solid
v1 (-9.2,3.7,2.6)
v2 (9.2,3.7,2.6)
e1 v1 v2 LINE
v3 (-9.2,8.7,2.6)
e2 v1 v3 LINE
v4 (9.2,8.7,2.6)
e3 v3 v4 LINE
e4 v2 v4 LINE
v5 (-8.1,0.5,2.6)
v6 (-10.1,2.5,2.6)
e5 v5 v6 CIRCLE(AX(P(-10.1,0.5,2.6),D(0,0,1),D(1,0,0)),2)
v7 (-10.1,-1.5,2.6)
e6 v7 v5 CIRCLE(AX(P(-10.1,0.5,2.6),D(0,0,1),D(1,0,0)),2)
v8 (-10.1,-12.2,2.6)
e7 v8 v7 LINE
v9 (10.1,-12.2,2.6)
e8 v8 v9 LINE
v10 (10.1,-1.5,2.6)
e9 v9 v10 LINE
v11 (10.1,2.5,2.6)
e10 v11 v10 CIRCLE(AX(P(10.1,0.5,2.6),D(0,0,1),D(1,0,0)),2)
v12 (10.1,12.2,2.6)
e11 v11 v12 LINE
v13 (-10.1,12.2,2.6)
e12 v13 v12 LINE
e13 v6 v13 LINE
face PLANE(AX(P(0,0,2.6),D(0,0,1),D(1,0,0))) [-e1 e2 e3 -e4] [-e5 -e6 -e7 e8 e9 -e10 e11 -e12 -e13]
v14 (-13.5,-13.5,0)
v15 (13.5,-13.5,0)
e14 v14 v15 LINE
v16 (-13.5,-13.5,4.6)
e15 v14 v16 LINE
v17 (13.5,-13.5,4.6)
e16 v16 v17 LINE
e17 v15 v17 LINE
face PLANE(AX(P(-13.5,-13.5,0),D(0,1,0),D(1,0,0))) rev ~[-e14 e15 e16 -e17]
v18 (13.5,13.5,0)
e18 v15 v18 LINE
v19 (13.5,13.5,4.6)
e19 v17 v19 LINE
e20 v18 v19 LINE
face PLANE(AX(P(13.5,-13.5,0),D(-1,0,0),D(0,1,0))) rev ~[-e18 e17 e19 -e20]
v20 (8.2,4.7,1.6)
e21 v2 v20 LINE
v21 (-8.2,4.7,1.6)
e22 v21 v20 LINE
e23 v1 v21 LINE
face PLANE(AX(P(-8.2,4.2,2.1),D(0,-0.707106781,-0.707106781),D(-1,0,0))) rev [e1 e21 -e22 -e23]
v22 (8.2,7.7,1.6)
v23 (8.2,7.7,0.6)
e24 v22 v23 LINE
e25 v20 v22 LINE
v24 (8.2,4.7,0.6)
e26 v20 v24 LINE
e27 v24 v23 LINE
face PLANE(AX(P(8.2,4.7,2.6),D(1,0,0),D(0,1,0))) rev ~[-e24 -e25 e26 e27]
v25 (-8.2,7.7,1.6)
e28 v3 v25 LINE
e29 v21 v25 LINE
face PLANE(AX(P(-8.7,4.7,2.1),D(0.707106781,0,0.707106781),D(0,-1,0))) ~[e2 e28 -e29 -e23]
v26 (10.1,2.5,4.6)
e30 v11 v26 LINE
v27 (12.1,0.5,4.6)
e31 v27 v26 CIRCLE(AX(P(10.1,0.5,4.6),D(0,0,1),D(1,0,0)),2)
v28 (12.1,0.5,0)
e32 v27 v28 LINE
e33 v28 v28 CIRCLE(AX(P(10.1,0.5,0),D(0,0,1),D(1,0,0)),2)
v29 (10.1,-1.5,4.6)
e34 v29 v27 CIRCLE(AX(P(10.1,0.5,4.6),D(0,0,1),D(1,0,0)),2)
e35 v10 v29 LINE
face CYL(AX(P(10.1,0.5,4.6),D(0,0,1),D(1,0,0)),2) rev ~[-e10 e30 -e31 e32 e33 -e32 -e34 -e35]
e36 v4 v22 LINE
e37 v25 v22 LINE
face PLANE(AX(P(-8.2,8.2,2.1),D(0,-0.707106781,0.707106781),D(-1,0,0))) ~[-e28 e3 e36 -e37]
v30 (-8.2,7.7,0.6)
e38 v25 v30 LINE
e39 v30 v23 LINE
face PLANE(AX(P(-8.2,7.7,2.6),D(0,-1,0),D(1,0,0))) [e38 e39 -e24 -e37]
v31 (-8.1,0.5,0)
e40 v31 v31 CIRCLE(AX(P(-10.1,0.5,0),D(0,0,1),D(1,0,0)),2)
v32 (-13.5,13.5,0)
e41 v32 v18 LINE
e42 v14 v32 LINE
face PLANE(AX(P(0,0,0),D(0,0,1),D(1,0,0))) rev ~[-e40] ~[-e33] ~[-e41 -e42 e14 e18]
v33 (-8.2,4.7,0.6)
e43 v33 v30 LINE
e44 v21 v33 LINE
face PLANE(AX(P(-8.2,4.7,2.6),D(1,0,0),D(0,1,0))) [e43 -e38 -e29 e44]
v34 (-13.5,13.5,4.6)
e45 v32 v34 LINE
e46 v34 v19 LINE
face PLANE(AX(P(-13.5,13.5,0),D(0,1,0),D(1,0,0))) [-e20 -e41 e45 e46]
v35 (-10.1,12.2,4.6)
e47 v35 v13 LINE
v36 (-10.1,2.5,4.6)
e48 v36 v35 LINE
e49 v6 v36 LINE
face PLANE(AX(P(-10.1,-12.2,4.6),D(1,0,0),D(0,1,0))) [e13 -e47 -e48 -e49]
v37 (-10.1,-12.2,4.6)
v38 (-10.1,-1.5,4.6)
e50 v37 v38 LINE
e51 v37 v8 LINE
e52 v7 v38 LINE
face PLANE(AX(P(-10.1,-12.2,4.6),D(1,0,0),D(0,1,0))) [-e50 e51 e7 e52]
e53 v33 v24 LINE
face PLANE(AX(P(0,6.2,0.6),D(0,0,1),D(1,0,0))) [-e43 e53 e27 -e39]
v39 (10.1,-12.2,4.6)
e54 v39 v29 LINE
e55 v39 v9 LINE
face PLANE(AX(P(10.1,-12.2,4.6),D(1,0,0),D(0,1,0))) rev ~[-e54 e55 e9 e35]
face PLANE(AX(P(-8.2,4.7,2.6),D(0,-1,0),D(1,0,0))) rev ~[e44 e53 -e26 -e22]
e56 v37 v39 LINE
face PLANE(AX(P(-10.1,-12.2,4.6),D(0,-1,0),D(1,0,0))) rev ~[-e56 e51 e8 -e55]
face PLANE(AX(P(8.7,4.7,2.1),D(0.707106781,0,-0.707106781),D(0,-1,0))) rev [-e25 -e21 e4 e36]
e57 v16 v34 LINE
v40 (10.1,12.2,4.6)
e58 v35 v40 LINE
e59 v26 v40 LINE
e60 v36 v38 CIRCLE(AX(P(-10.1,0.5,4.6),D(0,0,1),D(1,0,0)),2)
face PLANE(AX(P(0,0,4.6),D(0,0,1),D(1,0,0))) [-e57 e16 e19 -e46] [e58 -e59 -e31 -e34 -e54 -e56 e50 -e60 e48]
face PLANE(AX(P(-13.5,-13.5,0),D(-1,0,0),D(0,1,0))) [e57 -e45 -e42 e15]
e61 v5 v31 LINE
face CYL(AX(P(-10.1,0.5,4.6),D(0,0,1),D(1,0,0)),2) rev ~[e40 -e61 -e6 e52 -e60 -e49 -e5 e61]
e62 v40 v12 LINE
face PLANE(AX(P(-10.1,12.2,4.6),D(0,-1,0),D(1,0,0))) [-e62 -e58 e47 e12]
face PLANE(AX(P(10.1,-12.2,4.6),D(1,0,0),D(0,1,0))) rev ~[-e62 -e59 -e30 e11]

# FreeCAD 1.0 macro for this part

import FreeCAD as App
import Part
import Sketcher
Q = App.Units.Quantity


def edges_at(feature, points):
    """Names of the edges that pass closest to the given points."""
    edges = feature.Shape.Edges
    near = lambda p: min(range(len(edges)), key=lambda i: edges[i].distToShape(Part.Vertex(*p))[0])
    return sorted({f"Edge{near(p) + 1}" for p in points})

doc = App.newDocument("Part")
body = doc.addObject("PartDesign::Body", "Body")

sketch1 = doc.addObject("Sketcher::SketchObject", "Sketch")
body.addObject(sketch1)
sketch1.AttachmentSupport = (doc.XY_Plane, [""])
sketch1.MapMode = "FlatFace"
sketch1.addGeometry(Part.LineSegment(App.Vector(-14, 14, 0), App.Vector(-14, -14, 0)), False)
sketch1.addGeometry(Part.LineSegment(App.Vector(-14, -14, 0), App.Vector(14, -14, 0)), False)
sketch1.addGeometry(Part.LineSegment(App.Vector(14, -14, 0), App.Vector(14, 14, 0)), False)
sketch1.addGeometry(Part.LineSegment(App.Vector(14, 14, 0), App.Vector(-14, 14, 0)), False)
sketch1.addConstraint(Sketcher.Constraint("Coincident", 0, 2, 1, 1))
sketch1.addConstraint(Sketcher.Constraint("Coincident", 1, 2, 2, 1))
sketch1.addConstraint(Sketcher.Constraint("Coincident", 2, 2, 3, 1))
sketch1.addConstraint(Sketcher.Constraint("Coincident", 3, 2, 0, 1))
sketch1.addConstraint(Sketcher.Constraint("Vertical", 0))
sketch1.addConstraint(Sketcher.Constraint("Horizontal", 1))
sketch1.addConstraint(Sketcher.Constraint("Vertical", 2))
sketch1.addConstraint(Sketcher.Constraint("Horizontal", 3))
sketch1.addConstraint(Sketcher.Constraint("Symmetric", 0, 2, 2, 2, -1, 1))
sketch1.addConstraint(Sketcher.Constraint("Equal", 3, 0))
sketch1.addConstraint(Sketcher.Constraint("DistanceX", 1, 1, 1, 2, Q("27 mm")))
pad1 = doc.addObject("PartDesign::Pad", "Pad")
body.addObject(pad1)
pad1.Profile = sketch1
pad1.Length = 4.6

sketch2 = doc.addObject("Sketcher::SketchObject", "Sketch001")
body.addObject(sketch2)
sketch2.AttachmentSupport = (doc.XY_Plane, [""])
sketch2.MapMode = "FlatFace"
sketch2.AttachmentOffset = App.Placement(App.Vector(0, 0, 4.6), App.Rotation())
sketch2.addGeometry(Part.LineSegment(App.Vector(-10, 12, 0), App.Vector(-10, -12, 0)), False)
sketch2.addGeometry(Part.LineSegment(App.Vector(-10, -12, 0), App.Vector(10, -12, 0)), False)
sketch2.addGeometry(Part.LineSegment(App.Vector(10, -12, 0), App.Vector(10, 12, 0)), False)
sketch2.addGeometry(Part.LineSegment(App.Vector(10, 12, 0), App.Vector(-10, 12, 0)), False)
sketch2.addConstraint(Sketcher.Constraint("Coincident", 0, 2, 1, 1))
sketch2.addConstraint(Sketcher.Constraint("Coincident", 1, 2, 2, 1))
sketch2.addConstraint(Sketcher.Constraint("Coincident", 2, 2, 3, 1))
sketch2.addConstraint(Sketcher.Constraint("Coincident", 3, 2, 0, 1))
sketch2.addConstraint(Sketcher.Constraint("Vertical", 0))
sketch2.addConstraint(Sketcher.Constraint("Horizontal", 1))
sketch2.addConstraint(Sketcher.Constraint("Vertical", 2))
sketch2.addConstraint(Sketcher.Constraint("Horizontal", 3))
sketch2.addConstraint(Sketcher.Constraint("Symmetric", 0, 2, 2, 2, -1, 1))
sketch2.addConstraint(Sketcher.Constraint("DistanceX", 1, 1, 1, 2, Q("20.2 mm")))
sketch2.addConstraint(Sketcher.Constraint("DistanceY", 0, 2, 0, 1, Q("24.4 mm")))
pocket1 = doc.addObject("PartDesign::Pocket", "Pocket")
body.addObject(pocket1)
pocket1.Profile = sketch2
pocket1.Length = 2

sketch3 = doc.addObject("Sketcher::SketchObject", "Sketch002")
body.addObject(sketch3)
sketch3.AttachmentSupport = (doc.XY_Plane, [""])
sketch3.MapMode = "FlatFace"
sketch3.AttachmentOffset = App.Placement(App.Vector(0, 0, 2.6), App.Rotation())
sketch3.addGeometry(Part.LineSegment(App.Vector(-8.2, 7.7, 0), App.Vector(-8.2, 4.7, 0)), False)
sketch3.addGeometry(Part.LineSegment(App.Vector(-8.2, 4.7, 0), App.Vector(8.2, 4.7, 0)), False)
sketch3.addGeometry(Part.LineSegment(App.Vector(8.2, 4.7, 0), App.Vector(8.2, 7.7, 0)), False)
sketch3.addGeometry(Part.LineSegment(App.Vector(8.2, 7.7, 0), App.Vector(-8.2, 7.7, 0)), False)
sketch3.addConstraint(Sketcher.Constraint("Coincident", 0, 2, 1, 1))
sketch3.addConstraint(Sketcher.Constraint("Coincident", 1, 2, 2, 1))
sketch3.addConstraint(Sketcher.Constraint("Coincident", 2, 2, 3, 1))
sketch3.addConstraint(Sketcher.Constraint("Coincident", 3, 2, 0, 1))
sketch3.addConstraint(Sketcher.Constraint("Vertical", 0))
sketch3.addConstraint(Sketcher.Constraint("Horizontal", 1))
sketch3.addConstraint(Sketcher.Constraint("Vertical", 2))
sketch3.addConstraint(Sketcher.Constraint("Horizontal", 3))
sketch3.addConstraint(Sketcher.Constraint("DistanceY", 0, 2, 0, 1, Q("3 mm")))
sketch3.addConstraint(Sketcher.Constraint("DistanceX", 1, 1, 1, 2, Q("16.4 mm")))
sketch3.addConstraint(Sketcher.Constraint("DistanceX", 0, 2, -1, 1, Q("8.2 mm")))
sketch3.addConstraint(Sketcher.Constraint("DistanceY", -1, 1, 0, 2, Q("4.7 mm")))
pocket2 = doc.addObject("PartDesign::Pocket", "Pocket001")
body.addObject(pocket2)
pocket2.Profile = sketch3
pocket2.Length = 2
doc.recompute()

chamfer = doc.addObject("PartDesign::Chamfer", "Chamfer")
body.addObject(chamfer)
chamfer.Base = (pocket2, edges_at(pocket2, [
    (0, 7.7, 2.6),
    (-8.2, 6.2, 2.6),
    (0, 4.7, 2.6),
    (8.2, 6.2, 2.6),
]))
chamfer.Size = 1

sketch4 = doc.addObject("Sketcher::SketchObject", "Sketch003")
body.addObject(sketch4)
sketch4.AttachmentSupport = (doc.XY_Plane, [""])
sketch4.MapMode = "FlatFace"
sketch4.AttachmentOffset = App.Placement(App.Vector(0, 0, 4.6), App.Rotation())
sketch4.addGeometry(Part.Circle(App.Vector(-10.1, 0.5, 0), App.Vector(0, 0, 1), 2), False)
sketch4.addGeometry(Part.Circle(App.Vector(10.1, 0.5, 0), App.Vector(0, 0, 1), 2), False)
sketch4.addConstraint(Sketcher.Constraint("Equal", 0, 1))
sketch4.addConstraint(Sketcher.Constraint("Symmetric", 0, 3, 1, 3, -2))
sketch4.addConstraint(Sketcher.Constraint("Diameter", 0, Q("4 mm")))
sketch4.addConstraint(Sketcher.Constraint("DistanceX", 0, 3, -1, 1, Q("10.1 mm")))
sketch4.addConstraint(Sketcher.Constraint("DistanceY", -1, 1, 0, 3, Q("0.5 mm")))
pocket3 = doc.addObject("PartDesign::Pocket", "Pocket002")
body.addObject(pocket3)
pocket3.Profile = sketch4
pocket3.Type = "ThroughAll"

doc.recompute()
